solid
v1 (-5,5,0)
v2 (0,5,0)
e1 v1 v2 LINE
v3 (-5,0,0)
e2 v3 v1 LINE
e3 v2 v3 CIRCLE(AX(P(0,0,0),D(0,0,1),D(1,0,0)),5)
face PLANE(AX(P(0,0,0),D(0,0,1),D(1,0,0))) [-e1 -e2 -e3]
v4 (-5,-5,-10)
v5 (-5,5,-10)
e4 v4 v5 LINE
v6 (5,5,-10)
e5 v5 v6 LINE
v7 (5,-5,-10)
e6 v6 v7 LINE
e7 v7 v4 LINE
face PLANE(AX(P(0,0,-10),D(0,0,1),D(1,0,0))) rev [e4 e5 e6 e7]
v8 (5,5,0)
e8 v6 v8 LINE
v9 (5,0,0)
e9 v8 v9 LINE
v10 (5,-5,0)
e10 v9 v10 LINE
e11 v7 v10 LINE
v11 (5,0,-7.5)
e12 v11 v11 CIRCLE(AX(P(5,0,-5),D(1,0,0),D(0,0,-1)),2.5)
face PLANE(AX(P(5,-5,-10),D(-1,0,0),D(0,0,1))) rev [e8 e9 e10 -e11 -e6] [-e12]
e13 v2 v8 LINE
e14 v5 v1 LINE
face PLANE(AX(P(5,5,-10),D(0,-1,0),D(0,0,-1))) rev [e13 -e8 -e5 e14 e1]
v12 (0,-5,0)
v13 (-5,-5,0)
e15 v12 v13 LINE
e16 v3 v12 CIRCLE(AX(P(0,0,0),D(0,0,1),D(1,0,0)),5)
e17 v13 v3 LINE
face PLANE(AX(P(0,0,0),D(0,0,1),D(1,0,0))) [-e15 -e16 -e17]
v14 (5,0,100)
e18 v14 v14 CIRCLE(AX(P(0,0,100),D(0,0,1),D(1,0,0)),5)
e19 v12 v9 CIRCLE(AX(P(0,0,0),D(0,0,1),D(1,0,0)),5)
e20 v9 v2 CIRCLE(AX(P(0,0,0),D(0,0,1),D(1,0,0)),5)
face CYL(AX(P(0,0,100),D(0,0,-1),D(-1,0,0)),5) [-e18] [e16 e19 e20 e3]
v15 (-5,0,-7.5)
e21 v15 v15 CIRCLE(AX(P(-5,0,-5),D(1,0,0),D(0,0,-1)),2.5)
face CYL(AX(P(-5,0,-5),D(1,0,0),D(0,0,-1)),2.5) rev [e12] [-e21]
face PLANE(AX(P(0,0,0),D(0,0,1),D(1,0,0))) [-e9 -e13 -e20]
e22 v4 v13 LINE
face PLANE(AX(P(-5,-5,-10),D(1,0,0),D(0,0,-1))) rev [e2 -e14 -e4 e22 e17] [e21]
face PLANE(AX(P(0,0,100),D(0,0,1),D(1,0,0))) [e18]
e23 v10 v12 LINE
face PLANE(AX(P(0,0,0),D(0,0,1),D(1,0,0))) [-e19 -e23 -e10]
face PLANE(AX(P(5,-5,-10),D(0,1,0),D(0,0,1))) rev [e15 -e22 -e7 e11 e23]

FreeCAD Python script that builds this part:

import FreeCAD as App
import Part
import Sketcher

V = App.Vector

doc = App.newDocument("Part")
body = doc.addObject("PartDesign::Body", "Body")

sketch1 = body.newObject("Sketcher::SketchObject", "Sketch")
sketch1.AttachmentSupport = (doc.getObject("XY_Plane"), [""])
sketch1.MapMode = "FlatFace"
sketch1.addGeometry(Part.Circle(V(0, 0, 0), V(0, 0, 1), 5), False)
sketch1.addConstraint(Sketcher.Constraint("Coincident", 0, 3, -1, 1))
sketch1.addConstraint(Sketcher.Constraint("Diameter", 0, 10.0))
pad1 = body.newObject("PartDesign::Pad", "Pad")
pad1.Profile = sketch1
pad1.Length = 100

sketch2 = body.newObject("Sketcher::SketchObject", "Sketch001")
sketch2.AttachmentSupport = (doc.getObject("XY_Plane"), [""])
sketch2.MapMode = "FlatFace"
sketch2.addGeometry(Part.LineSegment(V(5, 5, 0), V(5, -5, 0)), False)
sketch2.addGeometry(Part.LineSegment(V(5, -5, 0), V(-5, -5, 0)), False)
sketch2.addGeometry(Part.LineSegment(V(-5, -5, 0), V(-5, 5, 0)), False)
sketch2.addGeometry(Part.LineSegment(V(-5, 5, 0), V(5, 5, 0)), False)
sketch2.addConstraint(Sketcher.Constraint("Coincident", 0, 2, 1, 1))
sketch2.addConstraint(Sketcher.Constraint("Coincident", 1, 2, 2, 1))
sketch2.addConstraint(Sketcher.Constraint("Coincident", 2, 2, 3, 1))
sketch2.addConstraint(Sketcher.Constraint("Coincident", 3, 2, 0, 1))
sketch2.addConstraint(Sketcher.Constraint("Vertical", 0))
sketch2.addConstraint(Sketcher.Constraint("Horizontal", 1))
sketch2.addConstraint(Sketcher.Constraint("Vertical", 2))
sketch2.addConstraint(Sketcher.Constraint("Horizontal", 3))
sketch2.addConstraint(Sketcher.Constraint("Symmetric", 0, 2, 2, 2, -1, 1))
sketch2.addConstraint(Sketcher.Constraint("Equal", 3, 0))
sketch2.addConstraint(Sketcher.Constraint("DistanceX", 1, 2, 1, 1, 10.0))
pad2 = body.newObject("PartDesign::Pad", "Pad001")
pad2.Profile = sketch2
pad2.Length = 10
pad2.Reversed = True

sketch3 = body.newObject("Sketcher::SketchObject", "Sketch002")
sketch3.AttachmentSupport = (doc.getObject("YZ_Plane"), [""])
sketch3.MapMode = "FlatFace"
sketch3.AttachmentOffset = App.Placement(V(0, 0, 5), App.Rotation())
sketch3.addGeometry(Part.Circle(V(0, -5, 0), V(0, 0, 1), 2.5), False)
sketch3.addConstraint(Sketcher.Constraint("PointOnObject", 0, 3, -2))
sketch3.addConstraint(Sketcher.Constraint("Diameter", 0, 5.0))
sketch3.addConstraint(Sketcher.Constraint("DistanceY", 0, 3, -1, 1, 5.0))
pocket1 = body.newObject("PartDesign::Pocket", "Pocket")
pocket1.Profile = sketch3
pocket1.Type = "ThroughAll"

doc.recompute()
